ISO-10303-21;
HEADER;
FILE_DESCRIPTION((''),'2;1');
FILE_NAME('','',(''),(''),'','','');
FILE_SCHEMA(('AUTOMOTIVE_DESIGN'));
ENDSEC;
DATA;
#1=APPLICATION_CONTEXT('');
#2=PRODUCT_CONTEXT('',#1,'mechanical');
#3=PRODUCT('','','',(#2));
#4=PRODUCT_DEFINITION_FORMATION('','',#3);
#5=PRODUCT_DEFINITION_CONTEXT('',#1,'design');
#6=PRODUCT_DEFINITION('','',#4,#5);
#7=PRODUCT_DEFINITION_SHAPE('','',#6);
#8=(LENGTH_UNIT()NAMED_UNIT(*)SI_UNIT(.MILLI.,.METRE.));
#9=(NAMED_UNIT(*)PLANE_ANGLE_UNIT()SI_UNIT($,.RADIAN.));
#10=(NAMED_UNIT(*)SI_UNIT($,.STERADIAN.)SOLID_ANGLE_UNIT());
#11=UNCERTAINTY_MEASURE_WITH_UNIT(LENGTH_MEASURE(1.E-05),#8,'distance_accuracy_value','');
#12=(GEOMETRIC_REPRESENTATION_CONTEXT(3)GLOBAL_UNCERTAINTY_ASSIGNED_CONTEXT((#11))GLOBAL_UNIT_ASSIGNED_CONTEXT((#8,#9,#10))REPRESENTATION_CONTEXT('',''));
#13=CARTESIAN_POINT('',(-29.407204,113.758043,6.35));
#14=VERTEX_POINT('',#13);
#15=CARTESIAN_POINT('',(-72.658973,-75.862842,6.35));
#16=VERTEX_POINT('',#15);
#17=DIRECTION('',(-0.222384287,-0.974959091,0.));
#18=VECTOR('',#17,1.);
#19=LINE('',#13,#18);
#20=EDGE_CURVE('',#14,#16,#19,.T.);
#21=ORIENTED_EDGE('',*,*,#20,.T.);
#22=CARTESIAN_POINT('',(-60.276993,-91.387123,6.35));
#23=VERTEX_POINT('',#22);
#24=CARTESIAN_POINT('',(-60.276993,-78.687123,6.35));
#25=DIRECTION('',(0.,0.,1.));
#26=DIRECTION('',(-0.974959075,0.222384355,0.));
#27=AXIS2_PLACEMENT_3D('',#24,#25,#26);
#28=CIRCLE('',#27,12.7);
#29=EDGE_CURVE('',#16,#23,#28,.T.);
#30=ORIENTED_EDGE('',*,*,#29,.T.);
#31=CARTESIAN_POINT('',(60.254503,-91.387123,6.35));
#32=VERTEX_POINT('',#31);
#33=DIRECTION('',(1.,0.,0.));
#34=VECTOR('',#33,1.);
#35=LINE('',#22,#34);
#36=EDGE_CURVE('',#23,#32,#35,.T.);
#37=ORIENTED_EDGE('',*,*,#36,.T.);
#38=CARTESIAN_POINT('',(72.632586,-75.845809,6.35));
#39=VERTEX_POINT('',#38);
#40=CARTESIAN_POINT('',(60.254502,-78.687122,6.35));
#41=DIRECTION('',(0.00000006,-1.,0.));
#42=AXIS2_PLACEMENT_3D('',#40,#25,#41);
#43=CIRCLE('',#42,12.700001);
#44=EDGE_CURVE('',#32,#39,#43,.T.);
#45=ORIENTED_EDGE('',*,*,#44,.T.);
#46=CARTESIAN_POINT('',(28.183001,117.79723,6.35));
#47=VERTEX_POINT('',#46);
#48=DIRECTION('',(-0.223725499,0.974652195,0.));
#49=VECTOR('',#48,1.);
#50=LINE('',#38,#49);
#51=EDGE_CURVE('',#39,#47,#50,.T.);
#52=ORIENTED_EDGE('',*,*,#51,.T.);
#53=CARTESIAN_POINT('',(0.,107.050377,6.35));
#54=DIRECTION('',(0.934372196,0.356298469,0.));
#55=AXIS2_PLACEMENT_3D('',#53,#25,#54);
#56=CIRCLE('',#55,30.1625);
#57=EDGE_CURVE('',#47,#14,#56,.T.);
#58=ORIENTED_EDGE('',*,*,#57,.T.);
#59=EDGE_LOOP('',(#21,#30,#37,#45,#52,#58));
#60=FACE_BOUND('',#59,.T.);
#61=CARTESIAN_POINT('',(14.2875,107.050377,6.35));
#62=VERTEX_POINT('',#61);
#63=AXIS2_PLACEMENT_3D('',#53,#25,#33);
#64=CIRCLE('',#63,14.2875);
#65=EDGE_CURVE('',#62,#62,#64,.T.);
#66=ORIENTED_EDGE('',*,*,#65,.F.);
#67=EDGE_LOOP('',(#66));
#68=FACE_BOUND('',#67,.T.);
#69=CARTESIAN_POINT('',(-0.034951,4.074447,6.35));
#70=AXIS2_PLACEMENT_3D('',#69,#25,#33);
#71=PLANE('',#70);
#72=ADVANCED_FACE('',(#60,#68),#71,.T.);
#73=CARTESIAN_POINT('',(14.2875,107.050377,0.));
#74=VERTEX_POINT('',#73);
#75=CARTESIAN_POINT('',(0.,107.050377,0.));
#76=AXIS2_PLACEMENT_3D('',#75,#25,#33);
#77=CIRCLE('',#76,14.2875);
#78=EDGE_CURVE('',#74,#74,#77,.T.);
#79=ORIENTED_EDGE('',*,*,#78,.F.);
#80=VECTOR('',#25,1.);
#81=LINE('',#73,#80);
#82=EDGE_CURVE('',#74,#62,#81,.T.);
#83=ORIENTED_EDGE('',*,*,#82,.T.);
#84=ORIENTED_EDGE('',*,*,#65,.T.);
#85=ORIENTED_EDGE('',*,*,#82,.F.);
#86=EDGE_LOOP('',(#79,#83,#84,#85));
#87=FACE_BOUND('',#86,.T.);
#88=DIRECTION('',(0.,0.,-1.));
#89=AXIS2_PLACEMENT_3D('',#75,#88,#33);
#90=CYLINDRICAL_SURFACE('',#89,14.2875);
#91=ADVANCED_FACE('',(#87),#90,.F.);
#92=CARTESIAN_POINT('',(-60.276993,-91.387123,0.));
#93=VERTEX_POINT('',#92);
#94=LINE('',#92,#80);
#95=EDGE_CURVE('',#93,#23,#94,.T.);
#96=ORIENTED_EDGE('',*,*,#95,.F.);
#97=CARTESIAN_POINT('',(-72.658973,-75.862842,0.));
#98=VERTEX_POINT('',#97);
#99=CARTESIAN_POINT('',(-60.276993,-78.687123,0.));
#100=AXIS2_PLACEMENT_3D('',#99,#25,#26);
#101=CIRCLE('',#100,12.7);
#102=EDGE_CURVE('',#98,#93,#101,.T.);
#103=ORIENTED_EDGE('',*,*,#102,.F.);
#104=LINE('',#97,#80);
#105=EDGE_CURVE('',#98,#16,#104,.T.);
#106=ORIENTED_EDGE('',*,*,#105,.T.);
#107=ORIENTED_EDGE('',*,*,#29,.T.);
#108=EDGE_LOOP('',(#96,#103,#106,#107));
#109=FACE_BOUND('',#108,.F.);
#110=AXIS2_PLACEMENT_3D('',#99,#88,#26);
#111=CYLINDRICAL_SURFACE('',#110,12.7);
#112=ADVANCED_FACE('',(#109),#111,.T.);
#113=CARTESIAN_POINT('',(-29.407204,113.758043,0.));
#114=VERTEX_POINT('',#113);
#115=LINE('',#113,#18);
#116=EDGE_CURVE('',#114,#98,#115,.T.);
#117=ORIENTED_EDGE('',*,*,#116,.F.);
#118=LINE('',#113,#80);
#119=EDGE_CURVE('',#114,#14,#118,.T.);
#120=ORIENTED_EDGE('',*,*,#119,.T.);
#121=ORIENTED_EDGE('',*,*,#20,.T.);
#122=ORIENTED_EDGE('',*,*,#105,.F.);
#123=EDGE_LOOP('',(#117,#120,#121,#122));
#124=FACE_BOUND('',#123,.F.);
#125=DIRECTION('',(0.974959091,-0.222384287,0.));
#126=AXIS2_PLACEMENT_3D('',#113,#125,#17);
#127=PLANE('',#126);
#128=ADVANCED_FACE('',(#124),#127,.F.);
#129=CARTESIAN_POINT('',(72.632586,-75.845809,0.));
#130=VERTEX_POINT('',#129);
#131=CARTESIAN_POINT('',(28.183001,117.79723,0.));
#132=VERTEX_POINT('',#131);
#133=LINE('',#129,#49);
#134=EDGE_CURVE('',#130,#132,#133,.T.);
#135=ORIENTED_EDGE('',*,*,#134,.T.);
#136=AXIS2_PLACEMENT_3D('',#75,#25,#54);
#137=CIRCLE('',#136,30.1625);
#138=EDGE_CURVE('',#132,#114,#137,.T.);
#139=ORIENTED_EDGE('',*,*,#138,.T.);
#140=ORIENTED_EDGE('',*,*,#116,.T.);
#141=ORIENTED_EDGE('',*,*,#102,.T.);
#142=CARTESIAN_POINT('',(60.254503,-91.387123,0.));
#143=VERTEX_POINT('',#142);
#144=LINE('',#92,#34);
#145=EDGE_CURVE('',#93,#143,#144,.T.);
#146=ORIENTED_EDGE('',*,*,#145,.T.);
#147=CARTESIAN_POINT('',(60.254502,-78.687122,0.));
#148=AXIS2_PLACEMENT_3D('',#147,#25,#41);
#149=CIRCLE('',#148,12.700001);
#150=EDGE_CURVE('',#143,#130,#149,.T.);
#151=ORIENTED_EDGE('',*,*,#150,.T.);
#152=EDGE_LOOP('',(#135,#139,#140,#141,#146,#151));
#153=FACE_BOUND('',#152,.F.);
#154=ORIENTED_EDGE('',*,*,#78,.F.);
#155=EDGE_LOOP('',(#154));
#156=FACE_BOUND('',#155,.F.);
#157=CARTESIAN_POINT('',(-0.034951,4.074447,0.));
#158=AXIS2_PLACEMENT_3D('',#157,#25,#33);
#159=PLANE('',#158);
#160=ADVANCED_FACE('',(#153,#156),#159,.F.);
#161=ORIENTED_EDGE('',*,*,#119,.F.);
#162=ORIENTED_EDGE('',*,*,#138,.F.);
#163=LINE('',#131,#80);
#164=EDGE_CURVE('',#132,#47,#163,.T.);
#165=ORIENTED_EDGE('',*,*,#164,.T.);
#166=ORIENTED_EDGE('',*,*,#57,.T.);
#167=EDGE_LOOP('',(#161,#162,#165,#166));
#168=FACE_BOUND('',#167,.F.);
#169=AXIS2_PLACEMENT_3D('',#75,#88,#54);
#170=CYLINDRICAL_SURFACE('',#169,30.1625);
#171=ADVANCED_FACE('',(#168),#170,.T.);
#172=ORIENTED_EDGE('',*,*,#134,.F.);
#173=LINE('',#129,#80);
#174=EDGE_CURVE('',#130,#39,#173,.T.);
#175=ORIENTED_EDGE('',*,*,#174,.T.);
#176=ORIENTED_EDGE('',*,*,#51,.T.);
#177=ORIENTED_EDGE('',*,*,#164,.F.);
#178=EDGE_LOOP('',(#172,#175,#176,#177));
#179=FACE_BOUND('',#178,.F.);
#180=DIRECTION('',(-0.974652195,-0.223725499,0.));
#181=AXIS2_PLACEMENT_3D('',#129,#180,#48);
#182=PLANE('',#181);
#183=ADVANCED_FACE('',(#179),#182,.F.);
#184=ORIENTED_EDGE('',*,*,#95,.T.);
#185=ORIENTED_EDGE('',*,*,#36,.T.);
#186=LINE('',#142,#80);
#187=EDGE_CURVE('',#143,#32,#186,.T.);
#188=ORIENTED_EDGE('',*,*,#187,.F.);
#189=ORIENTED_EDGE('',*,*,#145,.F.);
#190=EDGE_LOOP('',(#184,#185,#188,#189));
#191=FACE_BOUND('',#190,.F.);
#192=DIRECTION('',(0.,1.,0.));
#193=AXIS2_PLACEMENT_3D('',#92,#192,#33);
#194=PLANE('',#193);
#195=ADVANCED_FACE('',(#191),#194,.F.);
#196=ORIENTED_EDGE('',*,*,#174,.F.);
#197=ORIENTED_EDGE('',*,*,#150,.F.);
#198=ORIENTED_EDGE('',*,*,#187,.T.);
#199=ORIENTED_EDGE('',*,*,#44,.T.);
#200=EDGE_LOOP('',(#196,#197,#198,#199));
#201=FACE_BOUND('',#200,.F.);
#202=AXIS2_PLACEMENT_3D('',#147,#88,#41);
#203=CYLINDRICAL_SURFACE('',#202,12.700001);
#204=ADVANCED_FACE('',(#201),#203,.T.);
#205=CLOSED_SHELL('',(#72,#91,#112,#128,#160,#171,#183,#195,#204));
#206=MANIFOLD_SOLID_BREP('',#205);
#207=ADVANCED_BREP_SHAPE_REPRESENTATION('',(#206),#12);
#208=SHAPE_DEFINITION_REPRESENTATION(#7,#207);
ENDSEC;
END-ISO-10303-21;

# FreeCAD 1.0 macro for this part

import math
import FreeCAD as App
import Part
import Sketcher

V = App.Vector
Q = App.Units.Quantity

doc = App.newDocument("Part")
body = doc.addObject("PartDesign::Body", "Body")

# Sketch on XY plane
sketch1 = doc.addObject("Sketcher::SketchObject", "Sketch")
body.addObject(sketch1)
sketch1.AttachmentSupport = (doc.XY_Plane, [""])
sketch1.MapMode = "FlatFace"
sketch1.addGeometry([
    Part.ArcOfCircle(Part.Circle(V(-60.276993, -78.687123, 0), V(0, 0, 1), 12.7), math.radians(167.150884), math.radians(270)),  # 0
    Part.LineSegment(V(-60.276993, -91.387123, 0), V(60.254503, -91.387123, 0)),  # 1
    Part.ArcOfCircle(Part.Circle(V(60.254502, -78.687122, 0), V(0, 0, 1), 12.700001), math.radians(-89.999997), math.radians(12.927941)),  # 2
    Part.LineSegment(V(72.632586, -75.845809, 0), V(28.183001, 117.79723, 0)),  # 3
    Part.ArcOfCircle(Part.Circle(V(0, 107.050377, 0), V(0, 0, 1), 30.1625), math.radians(20.873046), math.radians(167.150889)),  # 4
    Part.LineSegment(V(-29.407204, 113.758043, 0), V(-72.658973, -75.862842, 0)),  # 5
    Part.Circle(V(0, 107.050377, 0), V(0, 0, 1), 14.2875),  # 6
], False)
sketch1.addConstraint([
    Sketcher.Constraint("Tangent", 0, 2, 1, 1),
    Sketcher.Constraint("Tangent", 1, 2, 2, 1),
    Sketcher.Constraint("Tangent", 2, 2, 3, 1),
    Sketcher.Constraint("Coincident", 3, 2, 4, 1),
    Sketcher.Constraint("Tangent", 4, 2, 5, 1),
    Sketcher.Constraint("Tangent", 5, 2, 0, 1),
    Sketcher.Constraint("Horizontal", 1),
    Sketcher.Constraint("Coincident", 6, 3, 4, 3),
    Sketcher.Constraint("Equal", 0, 2),
    Sketcher.Constraint("PointOnObject", 4, 3, -2),
    Sketcher.Constraint("Radius", 0, Q("0.5 in")),
    Sketcher.Constraint("Diameter", 6, Q("1.125 in")),
    Sketcher.Constraint("Radius", 4, Q("1.1875 in")),
    Sketcher.Constraint("DistanceY", 2, 3, 4, 3, Q("7.3125 in")),
    Sketcher.Constraint("DistanceX", -1, 1, 3, 2, Q("28.183001 mm")),
    Sketcher.Constraint("DistanceX", 3, 2, 2, 3, Q("32.071501 mm")),
    Sketcher.Constraint("Distance", 5, Q("194.491119 mm")),
    Sketcher.Constraint("DistanceY", 2, 2, -1, 1, Q("75.845809 mm")),
])
pad1 = doc.addObject("PartDesign::Pad", "Pad")
body.addObject(pad1)
pad1.Profile = sketch1
pad1.Length = Q("0.25 in")

doc.recompute()
